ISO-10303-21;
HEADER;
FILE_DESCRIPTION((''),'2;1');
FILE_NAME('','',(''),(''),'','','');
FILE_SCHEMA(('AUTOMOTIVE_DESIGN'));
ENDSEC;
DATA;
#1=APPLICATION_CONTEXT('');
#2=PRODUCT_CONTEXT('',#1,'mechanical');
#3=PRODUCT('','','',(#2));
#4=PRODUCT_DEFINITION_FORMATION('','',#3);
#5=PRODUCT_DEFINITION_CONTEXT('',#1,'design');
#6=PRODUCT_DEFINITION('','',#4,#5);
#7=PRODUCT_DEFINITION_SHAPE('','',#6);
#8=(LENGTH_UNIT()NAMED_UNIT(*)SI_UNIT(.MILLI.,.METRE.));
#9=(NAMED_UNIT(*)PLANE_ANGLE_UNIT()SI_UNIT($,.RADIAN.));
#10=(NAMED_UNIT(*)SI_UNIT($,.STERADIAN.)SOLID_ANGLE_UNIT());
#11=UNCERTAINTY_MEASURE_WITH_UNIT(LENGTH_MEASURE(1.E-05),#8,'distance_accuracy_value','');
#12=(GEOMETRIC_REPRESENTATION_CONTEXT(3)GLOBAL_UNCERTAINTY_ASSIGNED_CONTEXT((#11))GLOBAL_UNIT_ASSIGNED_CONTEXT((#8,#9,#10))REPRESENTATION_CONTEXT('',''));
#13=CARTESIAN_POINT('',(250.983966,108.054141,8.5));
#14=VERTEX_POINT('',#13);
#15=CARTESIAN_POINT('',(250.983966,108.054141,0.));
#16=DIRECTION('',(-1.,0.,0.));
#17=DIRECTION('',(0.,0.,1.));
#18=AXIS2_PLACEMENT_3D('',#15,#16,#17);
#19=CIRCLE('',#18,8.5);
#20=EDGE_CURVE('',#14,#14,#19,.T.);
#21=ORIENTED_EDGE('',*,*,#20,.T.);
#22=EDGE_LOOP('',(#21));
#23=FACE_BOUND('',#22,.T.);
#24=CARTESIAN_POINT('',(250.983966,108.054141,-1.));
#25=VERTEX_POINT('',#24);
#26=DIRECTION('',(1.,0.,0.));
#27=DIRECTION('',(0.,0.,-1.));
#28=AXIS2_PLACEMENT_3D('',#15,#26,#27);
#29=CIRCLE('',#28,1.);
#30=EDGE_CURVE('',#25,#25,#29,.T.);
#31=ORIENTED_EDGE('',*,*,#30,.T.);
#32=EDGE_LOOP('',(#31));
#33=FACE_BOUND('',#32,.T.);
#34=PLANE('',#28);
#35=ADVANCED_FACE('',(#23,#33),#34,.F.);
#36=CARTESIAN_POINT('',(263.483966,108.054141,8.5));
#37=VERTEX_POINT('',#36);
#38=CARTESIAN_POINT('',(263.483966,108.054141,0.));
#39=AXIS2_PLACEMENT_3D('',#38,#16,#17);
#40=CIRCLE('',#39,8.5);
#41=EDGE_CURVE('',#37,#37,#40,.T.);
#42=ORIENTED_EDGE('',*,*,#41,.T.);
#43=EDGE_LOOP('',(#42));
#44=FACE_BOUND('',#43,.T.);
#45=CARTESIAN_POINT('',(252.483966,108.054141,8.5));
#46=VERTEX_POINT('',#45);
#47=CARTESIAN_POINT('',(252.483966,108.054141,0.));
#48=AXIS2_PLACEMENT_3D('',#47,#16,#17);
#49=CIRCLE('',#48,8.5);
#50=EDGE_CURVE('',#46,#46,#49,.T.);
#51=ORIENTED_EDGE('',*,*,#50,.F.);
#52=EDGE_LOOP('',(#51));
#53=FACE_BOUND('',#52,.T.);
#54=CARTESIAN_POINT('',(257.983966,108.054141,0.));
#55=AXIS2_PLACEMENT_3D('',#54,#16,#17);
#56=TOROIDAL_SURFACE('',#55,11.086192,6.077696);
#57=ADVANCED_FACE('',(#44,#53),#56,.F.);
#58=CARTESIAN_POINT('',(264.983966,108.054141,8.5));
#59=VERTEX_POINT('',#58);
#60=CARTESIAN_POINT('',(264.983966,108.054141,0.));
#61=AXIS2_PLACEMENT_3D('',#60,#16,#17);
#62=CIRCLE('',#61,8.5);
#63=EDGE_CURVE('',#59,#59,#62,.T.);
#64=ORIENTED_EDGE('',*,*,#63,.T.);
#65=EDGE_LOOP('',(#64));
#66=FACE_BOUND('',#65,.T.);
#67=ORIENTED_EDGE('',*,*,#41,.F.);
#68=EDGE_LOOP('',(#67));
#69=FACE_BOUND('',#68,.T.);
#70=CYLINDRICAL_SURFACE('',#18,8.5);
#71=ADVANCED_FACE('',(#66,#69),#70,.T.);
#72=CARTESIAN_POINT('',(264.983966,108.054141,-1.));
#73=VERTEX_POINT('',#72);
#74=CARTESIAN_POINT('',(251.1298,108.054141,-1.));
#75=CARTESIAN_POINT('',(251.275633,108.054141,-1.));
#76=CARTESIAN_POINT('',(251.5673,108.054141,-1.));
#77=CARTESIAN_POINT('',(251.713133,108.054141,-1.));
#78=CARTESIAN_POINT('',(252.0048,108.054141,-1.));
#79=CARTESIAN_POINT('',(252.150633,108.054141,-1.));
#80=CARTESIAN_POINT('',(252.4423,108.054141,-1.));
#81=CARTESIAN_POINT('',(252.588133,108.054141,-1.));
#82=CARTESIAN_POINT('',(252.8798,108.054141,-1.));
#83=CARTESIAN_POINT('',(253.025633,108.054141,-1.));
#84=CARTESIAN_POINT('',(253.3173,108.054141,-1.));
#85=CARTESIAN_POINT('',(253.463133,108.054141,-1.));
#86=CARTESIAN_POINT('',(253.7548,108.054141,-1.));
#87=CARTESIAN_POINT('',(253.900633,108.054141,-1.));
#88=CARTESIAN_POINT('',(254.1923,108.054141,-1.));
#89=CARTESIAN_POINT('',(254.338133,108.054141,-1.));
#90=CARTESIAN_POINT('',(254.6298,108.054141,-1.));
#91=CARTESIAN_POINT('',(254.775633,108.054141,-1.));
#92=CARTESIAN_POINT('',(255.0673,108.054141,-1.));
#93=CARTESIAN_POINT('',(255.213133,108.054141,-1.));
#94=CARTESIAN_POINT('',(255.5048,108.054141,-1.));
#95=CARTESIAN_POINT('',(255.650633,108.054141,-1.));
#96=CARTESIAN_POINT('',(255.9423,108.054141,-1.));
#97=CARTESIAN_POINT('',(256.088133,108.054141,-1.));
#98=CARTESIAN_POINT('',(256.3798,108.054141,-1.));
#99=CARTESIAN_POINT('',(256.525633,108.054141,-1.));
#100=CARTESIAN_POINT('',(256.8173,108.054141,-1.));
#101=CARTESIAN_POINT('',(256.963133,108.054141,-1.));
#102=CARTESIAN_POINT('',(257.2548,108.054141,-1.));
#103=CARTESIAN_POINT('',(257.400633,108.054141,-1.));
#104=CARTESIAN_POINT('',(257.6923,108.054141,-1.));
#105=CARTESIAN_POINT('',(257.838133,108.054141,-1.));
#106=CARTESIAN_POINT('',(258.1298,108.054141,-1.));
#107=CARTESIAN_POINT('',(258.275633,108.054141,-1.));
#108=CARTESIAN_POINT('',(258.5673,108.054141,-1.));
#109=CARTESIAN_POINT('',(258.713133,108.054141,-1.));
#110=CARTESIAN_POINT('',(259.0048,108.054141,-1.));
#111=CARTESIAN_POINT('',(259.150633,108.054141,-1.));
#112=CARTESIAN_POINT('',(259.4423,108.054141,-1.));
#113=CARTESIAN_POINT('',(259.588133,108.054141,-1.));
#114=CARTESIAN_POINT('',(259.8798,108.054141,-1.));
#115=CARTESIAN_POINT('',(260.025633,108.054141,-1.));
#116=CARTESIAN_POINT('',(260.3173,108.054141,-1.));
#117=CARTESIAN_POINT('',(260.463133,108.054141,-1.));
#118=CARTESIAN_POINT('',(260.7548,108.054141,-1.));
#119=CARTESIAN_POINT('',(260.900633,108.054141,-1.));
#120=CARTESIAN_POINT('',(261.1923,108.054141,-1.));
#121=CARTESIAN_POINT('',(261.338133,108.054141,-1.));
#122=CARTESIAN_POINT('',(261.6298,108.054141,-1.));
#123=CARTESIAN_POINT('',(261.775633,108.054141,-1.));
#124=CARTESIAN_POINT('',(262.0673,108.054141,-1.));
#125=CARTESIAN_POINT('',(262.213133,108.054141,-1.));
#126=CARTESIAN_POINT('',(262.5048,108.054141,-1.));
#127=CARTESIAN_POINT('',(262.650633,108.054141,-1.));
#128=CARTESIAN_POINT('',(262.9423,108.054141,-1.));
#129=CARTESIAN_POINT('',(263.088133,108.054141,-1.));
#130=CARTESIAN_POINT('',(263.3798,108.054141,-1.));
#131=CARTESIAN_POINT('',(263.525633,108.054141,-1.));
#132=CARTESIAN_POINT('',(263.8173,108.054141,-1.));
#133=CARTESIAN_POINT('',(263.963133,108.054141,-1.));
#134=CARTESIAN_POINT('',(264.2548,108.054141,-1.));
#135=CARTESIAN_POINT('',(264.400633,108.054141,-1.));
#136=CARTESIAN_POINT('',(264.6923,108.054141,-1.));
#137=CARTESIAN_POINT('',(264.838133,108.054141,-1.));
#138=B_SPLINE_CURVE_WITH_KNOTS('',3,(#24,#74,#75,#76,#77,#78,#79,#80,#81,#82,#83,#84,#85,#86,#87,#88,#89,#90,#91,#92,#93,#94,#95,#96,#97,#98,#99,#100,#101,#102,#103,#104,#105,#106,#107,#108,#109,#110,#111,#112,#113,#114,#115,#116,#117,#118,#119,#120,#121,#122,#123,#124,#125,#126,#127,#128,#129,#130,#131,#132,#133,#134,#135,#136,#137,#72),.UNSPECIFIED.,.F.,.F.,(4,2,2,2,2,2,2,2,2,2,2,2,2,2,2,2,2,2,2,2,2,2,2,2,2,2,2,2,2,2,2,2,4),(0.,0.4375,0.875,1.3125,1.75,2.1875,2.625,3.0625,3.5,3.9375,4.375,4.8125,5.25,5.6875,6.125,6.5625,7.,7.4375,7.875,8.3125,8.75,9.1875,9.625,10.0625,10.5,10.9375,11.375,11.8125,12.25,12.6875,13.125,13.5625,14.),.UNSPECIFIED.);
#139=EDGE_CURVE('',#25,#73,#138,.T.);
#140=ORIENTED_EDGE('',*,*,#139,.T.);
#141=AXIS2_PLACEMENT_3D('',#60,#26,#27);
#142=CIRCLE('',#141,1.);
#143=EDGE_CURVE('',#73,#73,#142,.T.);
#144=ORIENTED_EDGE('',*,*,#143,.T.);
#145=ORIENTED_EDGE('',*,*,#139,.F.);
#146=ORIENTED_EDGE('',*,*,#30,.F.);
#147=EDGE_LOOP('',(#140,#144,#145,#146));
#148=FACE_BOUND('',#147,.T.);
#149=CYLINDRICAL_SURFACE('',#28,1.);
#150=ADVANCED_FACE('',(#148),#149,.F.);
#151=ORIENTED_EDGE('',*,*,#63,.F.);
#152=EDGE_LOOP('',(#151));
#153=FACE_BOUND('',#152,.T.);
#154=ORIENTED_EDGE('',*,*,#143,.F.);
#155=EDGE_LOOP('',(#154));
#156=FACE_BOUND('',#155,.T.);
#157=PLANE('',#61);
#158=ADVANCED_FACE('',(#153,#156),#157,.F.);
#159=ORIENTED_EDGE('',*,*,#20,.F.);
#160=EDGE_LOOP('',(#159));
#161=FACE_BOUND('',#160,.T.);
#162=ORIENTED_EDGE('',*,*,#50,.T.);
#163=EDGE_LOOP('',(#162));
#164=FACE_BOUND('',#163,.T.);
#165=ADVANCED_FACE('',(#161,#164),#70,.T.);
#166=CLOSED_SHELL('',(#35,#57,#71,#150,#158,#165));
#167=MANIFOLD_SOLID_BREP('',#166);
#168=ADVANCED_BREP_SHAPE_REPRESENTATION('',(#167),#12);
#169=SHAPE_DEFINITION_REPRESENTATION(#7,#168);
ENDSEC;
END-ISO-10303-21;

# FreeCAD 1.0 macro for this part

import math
import FreeCAD as App
import Part
import Sketcher

V = App.Vector
Q = App.Units.Quantity

doc = App.newDocument("Part")
body = doc.addObject("PartDesign::Body", "Body")

sketch1 = body.newObject("Sketcher::SketchObject", "Sketch")
sketch1.AttachmentSupport = (doc.getObject("XY_Plane"), [""])
sketch1.MapMode = "FlatFace"
sketch1.addGeometry(Part.LineSegment(V(251, 108.1, 0), V(265, 108.1, 0)), False)
sketch1.addGeometry(Part.LineSegment(V(265, 108.1, 0), V(265, 116.6, 0)), False)
sketch1.addGeometry(Part.LineSegment(V(265, 116.6, 0), V(263.5, 116.6, 0)), False)
sketch1.addGeometry(Part.ArcOfCircle(Part.Circle(V(258, 119.1, 0), V(0, 0, 1), 6.1), math.radians(-155), math.radians(-25)), False)
sketch1.addGeometry(Part.LineSegment(V(252.5, 116.6, 0), V(251, 116.6, 0)), False)
sketch1.addGeometry(Part.LineSegment(V(251, 116.6, 0), V(251, 108.1, 0)), False)
sketch1.addGeometry(Part.LineSegment(V(251, 108.1, 0), V(265, 108.1, 0)), True)
sketch1.addConstraint(Sketcher.Constraint("Coincident", 0, 2, 1, 1))
sketch1.addConstraint(Sketcher.Constraint("Coincident", 1, 2, 2, 1))
sketch1.addConstraint(Sketcher.Constraint("Coincident", 2, 2, 3, 2))
sketch1.addConstraint(Sketcher.Constraint("Coincident", 3, 1, 4, 1))
sketch1.addConstraint(Sketcher.Constraint("Coincident", 4, 2, 5, 1))
sketch1.addConstraint(Sketcher.Constraint("Coincident", 5, 2, 0, 1))
sketch1.addConstraint(Sketcher.Constraint("Horizontal", 0))
sketch1.addConstraint(Sketcher.Constraint("Vertical", 1))
sketch1.addConstraint(Sketcher.Constraint("Horizontal", 2))
sketch1.addConstraint(Sketcher.Constraint("Horizontal", 4))
sketch1.addConstraint(Sketcher.Constraint("Vertical", 5))
sketch1.addConstraint(Sketcher.Constraint("Horizontal", 6))
sketch1.addConstraint(Sketcher.Constraint("Coincident", 6, 1, 5, 2))
sketch1.addConstraint(Sketcher.Constraint("Horizontal", 2, 2, 3, 1))
sketch1.addConstraint(Sketcher.Constraint("Vertical", 1, 2, 6, 2))
sketch1.addConstraint(Sketcher.Constraint("Equal", 2, 4))
sketch1.addConstraint(Sketcher.Constraint("DistanceX", 0, 1, 0, 2, Q("14 mm")))
sketch1.addConstraint(Sketcher.Constraint("DistanceX", 2, 2, 2, 1, Q("1.5 mm")))
sketch1.addConstraint(Sketcher.Constraint("DistanceY", 1, 1, 1, 2, Q("8.5 mm")))
sketch1.addConstraint(Sketcher.Constraint("Radius", 3, Q("6.077696 mm")))
sketch1.addConstraint(Sketcher.Constraint("DistanceY", -1, 1, 0, 2, Q("108.054141 mm")))
sketch1.addConstraint(Sketcher.Constraint("DistanceX", -1, 1, 3, 3, Q("257.983966 mm")))
revolution = body.newObject("PartDesign::Revolution", "Revolution")
revolution.Profile = sketch1
revolution.ReferenceAxis = (sketch1, ["Axis0"])
revolution.Angle = 360

sketch2 = body.newObject("Sketcher::SketchObject", "Sketch001")
sketch2.AttachmentSupport = (doc.getObject("YZ_Plane"), [""])
sketch2.MapMode = "FlatFace"
sketch2.AttachmentOffset = App.Placement(V(0, 0, 264.983966), App.Rotation())
sketch2.addGeometry(Part.Circle(V(108.1, 0, 0), V(0, 0, 1), 1), False)
sketch2.addConstraint(Sketcher.Constraint("PointOnObject", 0, 3, -1))
sketch2.addConstraint(Sketcher.Constraint("Diameter", 0, Q("2 mm")))
sketch2.addConstraint(Sketcher.Constraint("DistanceX", -1, 1, 0, 3, Q("108.054141 mm")))
pocket1 = body.newObject("PartDesign::Pocket", "Pocket")
pocket1.Profile = sketch2
pocket1.Type = "ThroughAll"

doc.recompute()
